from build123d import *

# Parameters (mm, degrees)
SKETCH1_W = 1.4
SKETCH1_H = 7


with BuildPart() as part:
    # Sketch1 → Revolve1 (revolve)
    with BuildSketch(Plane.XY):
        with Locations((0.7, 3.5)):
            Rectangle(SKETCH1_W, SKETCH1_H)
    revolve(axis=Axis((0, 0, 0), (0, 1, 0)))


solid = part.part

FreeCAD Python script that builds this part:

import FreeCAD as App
import Part
import Sketcher

V = App.Vector
Q = App.Units.Quantity


def add_polygon(sketch, points):
    """Adds a closed chain of lines whose ends are joined by coincident constraints."""
    first, n = sketch.GeometryCount, len(points)
    for a, b in zip(points, points[1:] + points[:1]):
        sketch.addGeometry(Part.LineSegment(App.Vector(*a, 0), App.Vector(*b, 0)), False)
    for i in range(n):
        sketch.addConstraint(Sketcher.Constraint("Coincident", first + i, 2, first + (i + 1) % n, 1))

doc = App.newDocument("Part")
body = doc.addObject("PartDesign::Body", "Body")

sketch1 = doc.addObject("Sketcher::SketchObject", "Sketch")
body.addObject(sketch1)
sketch1.AttachmentSupport = (doc.XY_Plane, [""])
sketch1.MapMode = "FlatFace"
add_polygon(sketch1, [(0, 7), (0, 0), (1.4, 0), (1.4, 7)])
sketch1.addConstraint(Sketcher.Constraint("Vertical", 0))
sketch1.addConstraint(Sketcher.Constraint("Horizontal", 1))
sketch1.addConstraint(Sketcher.Constraint("Vertical", 2))
sketch1.addConstraint(Sketcher.Constraint("Horizontal", 3))
sketch1.addConstraint(Sketcher.Constraint("Coincident", 0, 2, -1, 1))
sketch1.addConstraint(Sketcher.Constraint("DistanceY", 0, 2, 0, 1, Q("7 mm")))
sketch1.addConstraint(Sketcher.Constraint("DistanceX", 1, 1, 1, 2, Q("1.4 mm")))
revolution = doc.addObject("PartDesign::Revolution", "Revolution")
body.addObject(revolution)
revolution.Profile = sketch1
revolution.ReferenceAxis = (sketch1, ["V_Axis"])
revolution.Angle = 360

doc.recompute()
